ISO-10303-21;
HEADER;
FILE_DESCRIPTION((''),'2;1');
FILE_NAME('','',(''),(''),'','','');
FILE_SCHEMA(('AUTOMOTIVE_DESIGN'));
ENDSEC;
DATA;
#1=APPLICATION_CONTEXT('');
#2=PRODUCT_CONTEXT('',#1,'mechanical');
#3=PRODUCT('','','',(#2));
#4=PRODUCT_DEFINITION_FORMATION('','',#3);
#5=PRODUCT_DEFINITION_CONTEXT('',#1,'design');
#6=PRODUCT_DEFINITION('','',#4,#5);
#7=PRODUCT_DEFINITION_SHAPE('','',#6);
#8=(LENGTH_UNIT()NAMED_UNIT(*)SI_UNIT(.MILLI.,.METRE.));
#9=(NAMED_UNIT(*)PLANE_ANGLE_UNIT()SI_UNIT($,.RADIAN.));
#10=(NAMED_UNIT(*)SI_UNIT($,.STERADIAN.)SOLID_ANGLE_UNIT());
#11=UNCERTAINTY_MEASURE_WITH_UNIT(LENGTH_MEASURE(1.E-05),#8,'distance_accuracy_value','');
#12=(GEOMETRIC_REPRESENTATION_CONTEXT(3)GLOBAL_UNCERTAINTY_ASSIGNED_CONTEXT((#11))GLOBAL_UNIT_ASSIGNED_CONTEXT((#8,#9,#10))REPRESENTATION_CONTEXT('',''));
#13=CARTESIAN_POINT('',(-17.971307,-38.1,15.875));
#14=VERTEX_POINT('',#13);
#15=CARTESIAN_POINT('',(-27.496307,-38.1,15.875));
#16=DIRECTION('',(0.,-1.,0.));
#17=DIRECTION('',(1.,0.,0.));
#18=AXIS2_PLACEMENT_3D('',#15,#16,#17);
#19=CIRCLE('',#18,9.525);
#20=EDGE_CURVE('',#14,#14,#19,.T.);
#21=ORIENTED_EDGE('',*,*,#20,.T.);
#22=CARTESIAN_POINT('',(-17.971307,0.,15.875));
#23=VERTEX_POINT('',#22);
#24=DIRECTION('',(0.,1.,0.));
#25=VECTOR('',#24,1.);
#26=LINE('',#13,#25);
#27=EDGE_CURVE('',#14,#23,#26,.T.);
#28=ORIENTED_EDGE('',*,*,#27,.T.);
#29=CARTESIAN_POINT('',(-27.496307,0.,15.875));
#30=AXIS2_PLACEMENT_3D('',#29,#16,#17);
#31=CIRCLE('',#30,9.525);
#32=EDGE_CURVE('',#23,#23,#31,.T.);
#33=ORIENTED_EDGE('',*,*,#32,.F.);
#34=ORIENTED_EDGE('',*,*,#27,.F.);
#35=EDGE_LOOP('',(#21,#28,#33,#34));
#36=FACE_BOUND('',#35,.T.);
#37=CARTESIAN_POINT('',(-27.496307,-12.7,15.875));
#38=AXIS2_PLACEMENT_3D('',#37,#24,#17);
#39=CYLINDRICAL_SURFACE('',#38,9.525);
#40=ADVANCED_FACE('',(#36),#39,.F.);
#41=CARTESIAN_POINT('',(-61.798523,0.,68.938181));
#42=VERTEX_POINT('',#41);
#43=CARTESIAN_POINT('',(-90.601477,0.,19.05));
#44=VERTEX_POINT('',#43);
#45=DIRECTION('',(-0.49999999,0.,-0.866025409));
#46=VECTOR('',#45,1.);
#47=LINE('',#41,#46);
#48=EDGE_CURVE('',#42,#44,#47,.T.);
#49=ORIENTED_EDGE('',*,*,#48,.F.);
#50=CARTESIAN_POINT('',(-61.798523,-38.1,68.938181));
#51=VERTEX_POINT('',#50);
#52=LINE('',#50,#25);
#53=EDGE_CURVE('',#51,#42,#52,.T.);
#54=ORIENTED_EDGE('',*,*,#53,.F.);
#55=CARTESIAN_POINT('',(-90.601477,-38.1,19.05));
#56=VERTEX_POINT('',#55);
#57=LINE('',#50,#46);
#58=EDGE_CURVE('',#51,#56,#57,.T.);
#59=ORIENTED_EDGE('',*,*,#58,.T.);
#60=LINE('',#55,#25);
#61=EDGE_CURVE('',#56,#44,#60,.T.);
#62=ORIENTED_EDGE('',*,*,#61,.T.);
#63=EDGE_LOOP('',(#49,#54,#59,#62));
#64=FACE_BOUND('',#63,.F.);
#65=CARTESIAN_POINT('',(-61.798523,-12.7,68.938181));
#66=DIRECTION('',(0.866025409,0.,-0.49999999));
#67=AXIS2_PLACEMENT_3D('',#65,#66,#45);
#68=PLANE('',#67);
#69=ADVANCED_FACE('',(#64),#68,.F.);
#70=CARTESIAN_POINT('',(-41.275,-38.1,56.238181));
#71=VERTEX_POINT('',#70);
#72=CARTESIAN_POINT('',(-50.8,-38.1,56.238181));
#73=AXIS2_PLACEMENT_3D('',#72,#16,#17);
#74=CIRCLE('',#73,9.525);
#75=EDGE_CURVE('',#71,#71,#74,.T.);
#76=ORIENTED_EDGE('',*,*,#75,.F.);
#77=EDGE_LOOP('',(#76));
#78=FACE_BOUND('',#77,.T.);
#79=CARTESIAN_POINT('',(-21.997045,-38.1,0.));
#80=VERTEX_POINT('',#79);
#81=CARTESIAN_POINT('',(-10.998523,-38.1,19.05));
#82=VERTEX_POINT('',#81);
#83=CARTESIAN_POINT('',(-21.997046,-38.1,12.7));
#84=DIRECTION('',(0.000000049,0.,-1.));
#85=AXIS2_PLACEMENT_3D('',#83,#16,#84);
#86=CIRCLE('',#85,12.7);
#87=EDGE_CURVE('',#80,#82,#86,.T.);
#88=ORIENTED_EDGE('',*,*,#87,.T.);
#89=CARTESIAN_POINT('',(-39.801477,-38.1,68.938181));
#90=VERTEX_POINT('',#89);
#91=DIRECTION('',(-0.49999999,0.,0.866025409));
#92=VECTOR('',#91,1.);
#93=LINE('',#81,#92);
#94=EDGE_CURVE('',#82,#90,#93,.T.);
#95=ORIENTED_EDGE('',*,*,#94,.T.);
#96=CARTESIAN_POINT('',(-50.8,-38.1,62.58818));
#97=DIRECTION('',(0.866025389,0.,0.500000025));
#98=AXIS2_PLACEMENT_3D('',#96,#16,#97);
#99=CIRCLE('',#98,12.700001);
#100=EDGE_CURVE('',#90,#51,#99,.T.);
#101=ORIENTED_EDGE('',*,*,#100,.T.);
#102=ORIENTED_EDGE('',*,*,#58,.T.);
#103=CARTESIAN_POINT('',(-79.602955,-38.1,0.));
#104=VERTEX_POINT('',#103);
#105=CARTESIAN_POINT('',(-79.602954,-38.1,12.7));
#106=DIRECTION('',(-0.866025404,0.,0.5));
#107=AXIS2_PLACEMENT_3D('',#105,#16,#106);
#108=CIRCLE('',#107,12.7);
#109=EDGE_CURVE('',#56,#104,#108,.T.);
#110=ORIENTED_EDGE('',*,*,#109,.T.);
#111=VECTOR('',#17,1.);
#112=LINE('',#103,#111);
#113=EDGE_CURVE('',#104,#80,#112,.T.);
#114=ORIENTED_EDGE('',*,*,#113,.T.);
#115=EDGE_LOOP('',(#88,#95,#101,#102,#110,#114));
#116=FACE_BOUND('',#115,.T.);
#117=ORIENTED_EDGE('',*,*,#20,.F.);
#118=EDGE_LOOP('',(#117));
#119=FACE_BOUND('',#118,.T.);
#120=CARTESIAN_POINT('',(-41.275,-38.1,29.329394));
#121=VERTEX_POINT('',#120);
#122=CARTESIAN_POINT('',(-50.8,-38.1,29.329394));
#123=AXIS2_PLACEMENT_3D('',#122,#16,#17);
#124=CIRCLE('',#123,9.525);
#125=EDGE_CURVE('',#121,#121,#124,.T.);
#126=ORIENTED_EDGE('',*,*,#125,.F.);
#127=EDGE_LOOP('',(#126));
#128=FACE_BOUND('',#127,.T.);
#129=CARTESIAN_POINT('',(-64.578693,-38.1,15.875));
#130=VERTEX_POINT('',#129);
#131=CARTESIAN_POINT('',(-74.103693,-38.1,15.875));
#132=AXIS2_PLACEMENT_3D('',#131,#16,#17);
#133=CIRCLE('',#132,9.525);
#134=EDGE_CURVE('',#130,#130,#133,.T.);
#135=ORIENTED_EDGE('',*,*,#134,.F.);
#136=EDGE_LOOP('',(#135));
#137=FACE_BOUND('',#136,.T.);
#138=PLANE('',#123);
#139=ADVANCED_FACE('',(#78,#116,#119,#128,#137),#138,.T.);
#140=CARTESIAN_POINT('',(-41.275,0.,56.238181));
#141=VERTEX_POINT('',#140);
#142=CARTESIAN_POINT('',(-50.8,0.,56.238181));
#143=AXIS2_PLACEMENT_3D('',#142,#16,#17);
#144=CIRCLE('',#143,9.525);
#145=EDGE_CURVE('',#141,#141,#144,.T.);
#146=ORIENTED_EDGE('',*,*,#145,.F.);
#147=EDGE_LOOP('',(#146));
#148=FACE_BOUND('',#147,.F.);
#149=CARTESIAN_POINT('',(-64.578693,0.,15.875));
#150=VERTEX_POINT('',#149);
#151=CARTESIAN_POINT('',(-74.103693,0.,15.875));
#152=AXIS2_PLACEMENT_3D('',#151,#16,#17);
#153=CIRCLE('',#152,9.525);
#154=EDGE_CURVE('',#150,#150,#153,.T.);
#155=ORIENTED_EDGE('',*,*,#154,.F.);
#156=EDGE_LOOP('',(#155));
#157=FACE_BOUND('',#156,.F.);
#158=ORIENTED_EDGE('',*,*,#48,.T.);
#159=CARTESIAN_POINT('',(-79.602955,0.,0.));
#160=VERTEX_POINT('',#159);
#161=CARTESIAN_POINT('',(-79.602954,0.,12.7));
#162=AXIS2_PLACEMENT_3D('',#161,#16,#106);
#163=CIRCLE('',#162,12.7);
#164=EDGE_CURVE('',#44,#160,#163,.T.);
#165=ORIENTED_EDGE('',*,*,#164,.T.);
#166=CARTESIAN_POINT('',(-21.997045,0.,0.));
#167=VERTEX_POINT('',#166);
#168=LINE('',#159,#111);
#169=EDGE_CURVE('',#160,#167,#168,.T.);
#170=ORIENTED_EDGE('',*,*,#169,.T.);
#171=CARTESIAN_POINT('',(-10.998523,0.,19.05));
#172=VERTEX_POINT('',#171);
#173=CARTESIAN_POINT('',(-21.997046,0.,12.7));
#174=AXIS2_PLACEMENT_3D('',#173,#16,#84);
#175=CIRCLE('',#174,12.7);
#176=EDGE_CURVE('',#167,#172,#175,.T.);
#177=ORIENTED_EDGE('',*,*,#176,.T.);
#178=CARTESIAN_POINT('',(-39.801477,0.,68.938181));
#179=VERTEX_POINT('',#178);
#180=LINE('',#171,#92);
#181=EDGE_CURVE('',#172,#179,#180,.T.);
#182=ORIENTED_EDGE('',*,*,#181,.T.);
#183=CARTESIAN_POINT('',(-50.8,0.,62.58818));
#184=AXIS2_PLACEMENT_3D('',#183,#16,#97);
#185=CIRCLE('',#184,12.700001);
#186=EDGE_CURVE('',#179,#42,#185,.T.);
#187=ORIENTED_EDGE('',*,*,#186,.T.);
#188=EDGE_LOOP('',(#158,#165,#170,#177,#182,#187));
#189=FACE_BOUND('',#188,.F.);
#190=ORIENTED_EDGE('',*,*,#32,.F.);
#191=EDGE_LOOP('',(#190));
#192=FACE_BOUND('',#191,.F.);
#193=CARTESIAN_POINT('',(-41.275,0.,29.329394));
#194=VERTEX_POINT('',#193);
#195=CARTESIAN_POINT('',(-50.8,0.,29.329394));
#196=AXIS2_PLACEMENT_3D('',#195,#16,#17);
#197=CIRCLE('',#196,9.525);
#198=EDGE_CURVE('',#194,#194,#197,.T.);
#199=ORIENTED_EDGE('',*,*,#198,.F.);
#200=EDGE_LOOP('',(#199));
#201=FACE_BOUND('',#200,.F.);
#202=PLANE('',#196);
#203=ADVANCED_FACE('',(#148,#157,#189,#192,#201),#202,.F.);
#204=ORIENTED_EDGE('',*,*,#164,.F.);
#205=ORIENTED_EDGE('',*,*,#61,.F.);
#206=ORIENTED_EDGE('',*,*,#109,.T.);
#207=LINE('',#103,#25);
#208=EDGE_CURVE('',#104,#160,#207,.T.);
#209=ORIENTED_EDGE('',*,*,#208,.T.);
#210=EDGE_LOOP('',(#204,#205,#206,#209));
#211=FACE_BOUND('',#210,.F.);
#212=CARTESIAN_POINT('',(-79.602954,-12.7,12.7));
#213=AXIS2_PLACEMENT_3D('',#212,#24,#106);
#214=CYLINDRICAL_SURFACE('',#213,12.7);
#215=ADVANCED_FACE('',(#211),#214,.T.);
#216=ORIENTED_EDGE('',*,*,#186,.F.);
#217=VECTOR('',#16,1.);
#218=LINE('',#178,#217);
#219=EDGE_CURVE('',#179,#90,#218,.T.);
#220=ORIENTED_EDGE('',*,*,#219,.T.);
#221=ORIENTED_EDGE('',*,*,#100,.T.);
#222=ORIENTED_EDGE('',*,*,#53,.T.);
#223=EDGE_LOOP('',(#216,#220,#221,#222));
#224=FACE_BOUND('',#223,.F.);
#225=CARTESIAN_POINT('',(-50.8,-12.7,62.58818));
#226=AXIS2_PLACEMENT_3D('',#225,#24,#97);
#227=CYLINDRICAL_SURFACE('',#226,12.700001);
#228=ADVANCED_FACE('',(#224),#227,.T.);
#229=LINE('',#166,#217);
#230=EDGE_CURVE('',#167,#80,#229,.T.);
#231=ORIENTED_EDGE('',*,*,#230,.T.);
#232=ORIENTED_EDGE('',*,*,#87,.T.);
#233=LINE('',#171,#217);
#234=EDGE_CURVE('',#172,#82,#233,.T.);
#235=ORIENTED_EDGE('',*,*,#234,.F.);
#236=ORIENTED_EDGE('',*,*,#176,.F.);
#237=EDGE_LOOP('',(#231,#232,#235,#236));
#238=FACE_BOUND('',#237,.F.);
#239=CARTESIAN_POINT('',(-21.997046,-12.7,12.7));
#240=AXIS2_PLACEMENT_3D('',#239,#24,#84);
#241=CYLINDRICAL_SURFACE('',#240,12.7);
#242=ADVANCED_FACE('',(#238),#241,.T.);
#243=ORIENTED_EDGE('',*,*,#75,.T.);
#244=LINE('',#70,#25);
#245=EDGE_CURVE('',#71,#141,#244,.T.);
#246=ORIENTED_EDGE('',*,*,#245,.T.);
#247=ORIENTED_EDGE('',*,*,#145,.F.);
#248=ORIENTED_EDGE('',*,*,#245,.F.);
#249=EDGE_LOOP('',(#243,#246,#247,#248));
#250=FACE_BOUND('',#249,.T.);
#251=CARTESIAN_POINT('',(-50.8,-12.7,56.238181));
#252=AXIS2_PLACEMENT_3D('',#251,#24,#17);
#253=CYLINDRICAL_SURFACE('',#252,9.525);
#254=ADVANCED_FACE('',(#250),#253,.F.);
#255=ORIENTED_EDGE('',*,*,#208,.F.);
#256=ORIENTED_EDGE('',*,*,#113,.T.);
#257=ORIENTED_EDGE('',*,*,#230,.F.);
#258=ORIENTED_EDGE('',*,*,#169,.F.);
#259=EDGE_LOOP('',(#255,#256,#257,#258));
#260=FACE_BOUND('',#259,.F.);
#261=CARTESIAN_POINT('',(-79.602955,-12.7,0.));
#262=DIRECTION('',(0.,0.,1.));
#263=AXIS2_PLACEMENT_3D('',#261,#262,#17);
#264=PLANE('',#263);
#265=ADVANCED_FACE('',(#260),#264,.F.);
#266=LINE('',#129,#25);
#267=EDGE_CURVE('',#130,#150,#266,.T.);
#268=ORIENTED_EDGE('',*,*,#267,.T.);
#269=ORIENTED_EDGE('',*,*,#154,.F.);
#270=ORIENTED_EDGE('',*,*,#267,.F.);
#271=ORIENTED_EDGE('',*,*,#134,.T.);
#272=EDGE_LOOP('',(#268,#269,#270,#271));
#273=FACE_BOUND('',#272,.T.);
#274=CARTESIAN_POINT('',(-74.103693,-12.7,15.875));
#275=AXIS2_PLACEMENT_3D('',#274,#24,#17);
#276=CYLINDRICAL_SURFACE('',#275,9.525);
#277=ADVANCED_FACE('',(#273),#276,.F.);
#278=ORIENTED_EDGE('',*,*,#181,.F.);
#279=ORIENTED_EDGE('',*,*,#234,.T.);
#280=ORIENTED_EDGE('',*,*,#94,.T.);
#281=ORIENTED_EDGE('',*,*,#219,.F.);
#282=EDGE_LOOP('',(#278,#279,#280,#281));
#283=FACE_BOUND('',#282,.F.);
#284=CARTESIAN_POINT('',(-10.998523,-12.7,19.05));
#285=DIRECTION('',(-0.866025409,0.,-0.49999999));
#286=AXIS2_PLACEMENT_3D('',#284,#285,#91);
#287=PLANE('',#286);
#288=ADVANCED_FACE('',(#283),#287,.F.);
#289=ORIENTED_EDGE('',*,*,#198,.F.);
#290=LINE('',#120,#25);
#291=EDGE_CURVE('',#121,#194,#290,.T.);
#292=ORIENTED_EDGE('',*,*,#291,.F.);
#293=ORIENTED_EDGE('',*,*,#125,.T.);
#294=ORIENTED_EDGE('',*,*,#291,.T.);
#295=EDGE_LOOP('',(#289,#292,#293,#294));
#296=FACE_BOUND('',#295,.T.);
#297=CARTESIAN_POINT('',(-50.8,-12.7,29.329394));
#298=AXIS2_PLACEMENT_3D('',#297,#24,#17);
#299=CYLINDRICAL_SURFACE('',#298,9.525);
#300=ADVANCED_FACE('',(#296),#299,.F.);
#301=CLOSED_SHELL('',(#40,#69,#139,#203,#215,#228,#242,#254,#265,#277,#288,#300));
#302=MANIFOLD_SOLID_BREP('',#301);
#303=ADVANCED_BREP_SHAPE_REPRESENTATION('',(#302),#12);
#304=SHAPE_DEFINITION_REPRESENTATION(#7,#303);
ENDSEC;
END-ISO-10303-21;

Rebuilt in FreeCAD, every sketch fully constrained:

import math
import FreeCAD as App
import Part
import Sketcher
from FreeCAD import Vector
Q = App.Units.Quantity

doc = App.newDocument("Part")
params = doc.addObject("Spreadsheet::Sheet", "Params")
for row, (alias, value) in enumerate([
    ("sketch1_radius", "0.5 in"),
    ("sketch1_diameter", "0.75 in"),
    ("pad1_length", "0.5 in"),
    ("sketch2_radius", "0.5 in"),
    ("sketch2_diameter", "0.75 in"),
    ("pad2_length", "1 in"),
], start=1):
    params.set(f"A{row}", alias)
    params.set(f"B{row}", "=" + value)
    params.setAlias(f"B{row}", alias)

body = doc.addObject("PartDesign::Body", "Body")

# Sketch on XZ plane
sketch1 = body.newObject("Sketcher::SketchObject", "Sketch")
sketch1.AttachmentSupport = (doc.getObject("XZ_Plane"), [""])
sketch1.MapMode = "FlatFace"
sketch1.addGeometry([
    Part.LineSegment(Vector(-80, 0, 0), Vector(-22, 0, 0)),  # 0
    Part.ArcOfCircle(Part.Circle(Vector(-22, 13, 0), Vector(0, 0, 1), 13), math.radians(-90), math.radians(30)),  # 1
    Part.LineSegment(Vector(-11, 19, 0), Vector(-40, 69, 0)),  # 2
    Part.ArcOfCircle(Part.Circle(Vector(-51, 63, 0), Vector(0, 0, 1), 13), math.radians(30), math.radians(150)),  # 3
    Part.LineSegment(Vector(-62, 69, 0), Vector(-91, 19, 0)),  # 4
    Part.ArcOfCircle(Part.Circle(Vector(-80, 13, 0), Vector(0, 0, 1), 13), math.radians(150), math.radians(270)),  # 5
    Part.Circle(Vector(-74, 16, 0), Vector(0, 0, 1), 10),  # 6
    Part.Circle(Vector(-27, 16, 0), Vector(0, 0, 1), 10),  # 7
    Part.Circle(Vector(-51, 29, 0), Vector(0, 0, 1), 10),  # 8
    Part.Circle(Vector(-51, 56, 0), Vector(0, 0, 1), 10),  # 9
], False)
sketch1.addConstraint([
    Sketcher.Constraint("Tangent", 0, 2, 1, 1),
    Sketcher.Constraint("Tangent", 1, 2, 2, 1),
    Sketcher.Constraint("Tangent", 2, 2, 3, 1),
    Sketcher.Constraint("Tangent", 3, 2, 4, 1),
    Sketcher.Constraint("Tangent", 4, 2, 5, 1),
    Sketcher.Constraint("Tangent", 5, 2, 0, 1),
    Sketcher.Constraint("Horizontal", 0),
    Sketcher.Constraint("Equal", 1, 3),
    Sketcher.Constraint("Equal", 3, 5),
    Sketcher.Constraint("Equal", 6, 7),
    Sketcher.Constraint("Equal", 7, 8),
    Sketcher.Constraint("Equal", 8, 9),
    Sketcher.Constraint("PointOnObject", 0, 2, -1),
    Sketcher.Constraint("Horizontal", 6, 3, 7, 3),
    Sketcher.Constraint("Horizontal", 2, 2, 3, 2),
    Sketcher.Constraint("Vertical", 3, 3, 8, 3),
    Sketcher.Constraint("Vertical", 8, 3, 9, 3),
    Sketcher.Constraint("Radius", 1, Q("0.5 in")),
    Sketcher.Constraint("Diameter", 6, Q("0.75 in")),
    Sketcher.Constraint("DistanceX", 3, 3, -1, 1, Q("2 in")),
    Sketcher.Constraint("Angle", 2, Q("119.999999 deg")),
    Sketcher.Constraint("DistanceY", 9, 3, 2, 2, Q("0.5 in")),
    Sketcher.Constraint("DistanceY", -1, 1, 6, 3, Q("0.625 in")),
    Sketcher.Constraint("DistanceX", 0, 1, 0, 2, 57.60591),
    Sketcher.Constraint("DistanceX", 5, 3, 6, 3, 5.499261),
    Sketcher.Constraint("DistanceX", 7, 3, 1, 3, 5.499261),
    Sketcher.Constraint("DistanceY", -1, 1, 8, 3, 29.329394),
])
sketch1.setExpression("Constraints[17]", "Params.sketch1_radius")
sketch1.setExpression("Constraints[18]", "Params.sketch1_diameter")
pad1 = body.newObject("PartDesign::Pad", "Pad")
pad1.Profile = sketch1
pad1.setExpression("Length", "Params.pad1_length")

# Sketch on XZ plane
sketch2 = body.newObject("Sketcher::SketchObject", "Sketch001")
sketch2.AttachmentSupport = (doc.getObject("XZ_Plane"), [""])
sketch2.MapMode = "FlatFace"
sketch2.AttachmentOffset = App.Placement(Vector(0, 0, 0.5 * 25.4), App.Rotation())
sketch2.addGeometry([
    Part.LineSegment(Vector(-80, 0, 0), Vector(-22, 0, 0)),  # 0
    Part.ArcOfCircle(Part.Circle(Vector(-22, 13, 0), Vector(0, 0, 1), 13), math.radians(-90), math.radians(30)),  # 1
    Part.LineSegment(Vector(-11, 19, 0), Vector(-40, 69, 0)),  # 2
    Part.ArcOfCircle(Part.Circle(Vector(-51, 63, 0), Vector(0, 0, 1), 13), math.radians(30), math.radians(150)),  # 3
    Part.LineSegment(Vector(-62, 69, 0), Vector(-91, 19, 0)),  # 4
    Part.ArcOfCircle(Part.Circle(Vector(-80, 13, 0), Vector(0, 0, 1), 13), math.radians(150), math.radians(270)),  # 5
    Part.Circle(Vector(-74, 16, 0), Vector(0, 0, 1), 10),  # 6
    Part.Circle(Vector(-51, 29, 0), Vector(0, 0, 1), 10),  # 7
    Part.Circle(Vector(-27, 16, 0), Vector(0, 0, 1), 10),  # 8
    Part.Circle(Vector(-51, 56, 0), Vector(0, 0, 1), 10),  # 9
], False)
sketch2.addConstraint([
    Sketcher.Constraint("Tangent", 0, 2, 1, 1),
    Sketcher.Constraint("Tangent", 1, 2, 2, 1),
    Sketcher.Constraint("Tangent", 2, 2, 3, 1),
    Sketcher.Constraint("Tangent", 3, 2, 4, 1),
    Sketcher.Constraint("Tangent", 4, 2, 5, 1),
    Sketcher.Constraint("Tangent", 5, 2, 0, 1),
    Sketcher.Constraint("Horizontal", 0),
    Sketcher.Constraint("Equal", 1, 3),
    Sketcher.Constraint("Equal", 3, 5),
    Sketcher.Constraint("Equal", 6, 7),
    Sketcher.Constraint("Equal", 7, 8),
    Sketcher.Constraint("Equal", 8, 9),
    Sketcher.Constraint("PointOnObject", 0, 2, -1),
    Sketcher.Constraint("Horizontal", 6, 3, 8, 3),
    Sketcher.Constraint("Horizontal", 2, 2, 3, 2),
    Sketcher.Constraint("Vertical", 3, 3, 7, 3),
    Sketcher.Constraint("Vertical", 7, 3, 9, 3),
    Sketcher.Constraint("Radius", 1, Q("0.5 in")),
    Sketcher.Constraint("Diameter", 6, Q("0.75 in")),
    Sketcher.Constraint("DistanceX", 3, 3, -1, 1, Q("2 in")),
    Sketcher.Constraint("Angle", 2, Q("119.999999 deg")),
    Sketcher.Constraint("DistanceY", 9, 3, 2, 2, Q("0.5 in")),
    Sketcher.Constraint("DistanceY", -1, 1, 6, 3, Q("0.625 in")),
    Sketcher.Constraint("DistanceX", 0, 1, 0, 2, 57.60591),
    Sketcher.Constraint("DistanceX", 5, 3, 6, 3, 5.499261),
    Sketcher.Constraint("DistanceX", 8, 3, 1, 3, 5.499261),
    Sketcher.Constraint("DistanceY", -1, 1, 7, 3, 29.329394),
])
sketch2.setExpression("Constraints[17]", "Params.sketch2_radius")
sketch2.setExpression("Constraints[18]", "Params.sketch2_diameter")
pad2 = body.newObject("PartDesign::Pad", "Pad001")
pad2.Profile = sketch2
pad2.setExpression("Length", "Params.pad2_length")

doc.recompute()
